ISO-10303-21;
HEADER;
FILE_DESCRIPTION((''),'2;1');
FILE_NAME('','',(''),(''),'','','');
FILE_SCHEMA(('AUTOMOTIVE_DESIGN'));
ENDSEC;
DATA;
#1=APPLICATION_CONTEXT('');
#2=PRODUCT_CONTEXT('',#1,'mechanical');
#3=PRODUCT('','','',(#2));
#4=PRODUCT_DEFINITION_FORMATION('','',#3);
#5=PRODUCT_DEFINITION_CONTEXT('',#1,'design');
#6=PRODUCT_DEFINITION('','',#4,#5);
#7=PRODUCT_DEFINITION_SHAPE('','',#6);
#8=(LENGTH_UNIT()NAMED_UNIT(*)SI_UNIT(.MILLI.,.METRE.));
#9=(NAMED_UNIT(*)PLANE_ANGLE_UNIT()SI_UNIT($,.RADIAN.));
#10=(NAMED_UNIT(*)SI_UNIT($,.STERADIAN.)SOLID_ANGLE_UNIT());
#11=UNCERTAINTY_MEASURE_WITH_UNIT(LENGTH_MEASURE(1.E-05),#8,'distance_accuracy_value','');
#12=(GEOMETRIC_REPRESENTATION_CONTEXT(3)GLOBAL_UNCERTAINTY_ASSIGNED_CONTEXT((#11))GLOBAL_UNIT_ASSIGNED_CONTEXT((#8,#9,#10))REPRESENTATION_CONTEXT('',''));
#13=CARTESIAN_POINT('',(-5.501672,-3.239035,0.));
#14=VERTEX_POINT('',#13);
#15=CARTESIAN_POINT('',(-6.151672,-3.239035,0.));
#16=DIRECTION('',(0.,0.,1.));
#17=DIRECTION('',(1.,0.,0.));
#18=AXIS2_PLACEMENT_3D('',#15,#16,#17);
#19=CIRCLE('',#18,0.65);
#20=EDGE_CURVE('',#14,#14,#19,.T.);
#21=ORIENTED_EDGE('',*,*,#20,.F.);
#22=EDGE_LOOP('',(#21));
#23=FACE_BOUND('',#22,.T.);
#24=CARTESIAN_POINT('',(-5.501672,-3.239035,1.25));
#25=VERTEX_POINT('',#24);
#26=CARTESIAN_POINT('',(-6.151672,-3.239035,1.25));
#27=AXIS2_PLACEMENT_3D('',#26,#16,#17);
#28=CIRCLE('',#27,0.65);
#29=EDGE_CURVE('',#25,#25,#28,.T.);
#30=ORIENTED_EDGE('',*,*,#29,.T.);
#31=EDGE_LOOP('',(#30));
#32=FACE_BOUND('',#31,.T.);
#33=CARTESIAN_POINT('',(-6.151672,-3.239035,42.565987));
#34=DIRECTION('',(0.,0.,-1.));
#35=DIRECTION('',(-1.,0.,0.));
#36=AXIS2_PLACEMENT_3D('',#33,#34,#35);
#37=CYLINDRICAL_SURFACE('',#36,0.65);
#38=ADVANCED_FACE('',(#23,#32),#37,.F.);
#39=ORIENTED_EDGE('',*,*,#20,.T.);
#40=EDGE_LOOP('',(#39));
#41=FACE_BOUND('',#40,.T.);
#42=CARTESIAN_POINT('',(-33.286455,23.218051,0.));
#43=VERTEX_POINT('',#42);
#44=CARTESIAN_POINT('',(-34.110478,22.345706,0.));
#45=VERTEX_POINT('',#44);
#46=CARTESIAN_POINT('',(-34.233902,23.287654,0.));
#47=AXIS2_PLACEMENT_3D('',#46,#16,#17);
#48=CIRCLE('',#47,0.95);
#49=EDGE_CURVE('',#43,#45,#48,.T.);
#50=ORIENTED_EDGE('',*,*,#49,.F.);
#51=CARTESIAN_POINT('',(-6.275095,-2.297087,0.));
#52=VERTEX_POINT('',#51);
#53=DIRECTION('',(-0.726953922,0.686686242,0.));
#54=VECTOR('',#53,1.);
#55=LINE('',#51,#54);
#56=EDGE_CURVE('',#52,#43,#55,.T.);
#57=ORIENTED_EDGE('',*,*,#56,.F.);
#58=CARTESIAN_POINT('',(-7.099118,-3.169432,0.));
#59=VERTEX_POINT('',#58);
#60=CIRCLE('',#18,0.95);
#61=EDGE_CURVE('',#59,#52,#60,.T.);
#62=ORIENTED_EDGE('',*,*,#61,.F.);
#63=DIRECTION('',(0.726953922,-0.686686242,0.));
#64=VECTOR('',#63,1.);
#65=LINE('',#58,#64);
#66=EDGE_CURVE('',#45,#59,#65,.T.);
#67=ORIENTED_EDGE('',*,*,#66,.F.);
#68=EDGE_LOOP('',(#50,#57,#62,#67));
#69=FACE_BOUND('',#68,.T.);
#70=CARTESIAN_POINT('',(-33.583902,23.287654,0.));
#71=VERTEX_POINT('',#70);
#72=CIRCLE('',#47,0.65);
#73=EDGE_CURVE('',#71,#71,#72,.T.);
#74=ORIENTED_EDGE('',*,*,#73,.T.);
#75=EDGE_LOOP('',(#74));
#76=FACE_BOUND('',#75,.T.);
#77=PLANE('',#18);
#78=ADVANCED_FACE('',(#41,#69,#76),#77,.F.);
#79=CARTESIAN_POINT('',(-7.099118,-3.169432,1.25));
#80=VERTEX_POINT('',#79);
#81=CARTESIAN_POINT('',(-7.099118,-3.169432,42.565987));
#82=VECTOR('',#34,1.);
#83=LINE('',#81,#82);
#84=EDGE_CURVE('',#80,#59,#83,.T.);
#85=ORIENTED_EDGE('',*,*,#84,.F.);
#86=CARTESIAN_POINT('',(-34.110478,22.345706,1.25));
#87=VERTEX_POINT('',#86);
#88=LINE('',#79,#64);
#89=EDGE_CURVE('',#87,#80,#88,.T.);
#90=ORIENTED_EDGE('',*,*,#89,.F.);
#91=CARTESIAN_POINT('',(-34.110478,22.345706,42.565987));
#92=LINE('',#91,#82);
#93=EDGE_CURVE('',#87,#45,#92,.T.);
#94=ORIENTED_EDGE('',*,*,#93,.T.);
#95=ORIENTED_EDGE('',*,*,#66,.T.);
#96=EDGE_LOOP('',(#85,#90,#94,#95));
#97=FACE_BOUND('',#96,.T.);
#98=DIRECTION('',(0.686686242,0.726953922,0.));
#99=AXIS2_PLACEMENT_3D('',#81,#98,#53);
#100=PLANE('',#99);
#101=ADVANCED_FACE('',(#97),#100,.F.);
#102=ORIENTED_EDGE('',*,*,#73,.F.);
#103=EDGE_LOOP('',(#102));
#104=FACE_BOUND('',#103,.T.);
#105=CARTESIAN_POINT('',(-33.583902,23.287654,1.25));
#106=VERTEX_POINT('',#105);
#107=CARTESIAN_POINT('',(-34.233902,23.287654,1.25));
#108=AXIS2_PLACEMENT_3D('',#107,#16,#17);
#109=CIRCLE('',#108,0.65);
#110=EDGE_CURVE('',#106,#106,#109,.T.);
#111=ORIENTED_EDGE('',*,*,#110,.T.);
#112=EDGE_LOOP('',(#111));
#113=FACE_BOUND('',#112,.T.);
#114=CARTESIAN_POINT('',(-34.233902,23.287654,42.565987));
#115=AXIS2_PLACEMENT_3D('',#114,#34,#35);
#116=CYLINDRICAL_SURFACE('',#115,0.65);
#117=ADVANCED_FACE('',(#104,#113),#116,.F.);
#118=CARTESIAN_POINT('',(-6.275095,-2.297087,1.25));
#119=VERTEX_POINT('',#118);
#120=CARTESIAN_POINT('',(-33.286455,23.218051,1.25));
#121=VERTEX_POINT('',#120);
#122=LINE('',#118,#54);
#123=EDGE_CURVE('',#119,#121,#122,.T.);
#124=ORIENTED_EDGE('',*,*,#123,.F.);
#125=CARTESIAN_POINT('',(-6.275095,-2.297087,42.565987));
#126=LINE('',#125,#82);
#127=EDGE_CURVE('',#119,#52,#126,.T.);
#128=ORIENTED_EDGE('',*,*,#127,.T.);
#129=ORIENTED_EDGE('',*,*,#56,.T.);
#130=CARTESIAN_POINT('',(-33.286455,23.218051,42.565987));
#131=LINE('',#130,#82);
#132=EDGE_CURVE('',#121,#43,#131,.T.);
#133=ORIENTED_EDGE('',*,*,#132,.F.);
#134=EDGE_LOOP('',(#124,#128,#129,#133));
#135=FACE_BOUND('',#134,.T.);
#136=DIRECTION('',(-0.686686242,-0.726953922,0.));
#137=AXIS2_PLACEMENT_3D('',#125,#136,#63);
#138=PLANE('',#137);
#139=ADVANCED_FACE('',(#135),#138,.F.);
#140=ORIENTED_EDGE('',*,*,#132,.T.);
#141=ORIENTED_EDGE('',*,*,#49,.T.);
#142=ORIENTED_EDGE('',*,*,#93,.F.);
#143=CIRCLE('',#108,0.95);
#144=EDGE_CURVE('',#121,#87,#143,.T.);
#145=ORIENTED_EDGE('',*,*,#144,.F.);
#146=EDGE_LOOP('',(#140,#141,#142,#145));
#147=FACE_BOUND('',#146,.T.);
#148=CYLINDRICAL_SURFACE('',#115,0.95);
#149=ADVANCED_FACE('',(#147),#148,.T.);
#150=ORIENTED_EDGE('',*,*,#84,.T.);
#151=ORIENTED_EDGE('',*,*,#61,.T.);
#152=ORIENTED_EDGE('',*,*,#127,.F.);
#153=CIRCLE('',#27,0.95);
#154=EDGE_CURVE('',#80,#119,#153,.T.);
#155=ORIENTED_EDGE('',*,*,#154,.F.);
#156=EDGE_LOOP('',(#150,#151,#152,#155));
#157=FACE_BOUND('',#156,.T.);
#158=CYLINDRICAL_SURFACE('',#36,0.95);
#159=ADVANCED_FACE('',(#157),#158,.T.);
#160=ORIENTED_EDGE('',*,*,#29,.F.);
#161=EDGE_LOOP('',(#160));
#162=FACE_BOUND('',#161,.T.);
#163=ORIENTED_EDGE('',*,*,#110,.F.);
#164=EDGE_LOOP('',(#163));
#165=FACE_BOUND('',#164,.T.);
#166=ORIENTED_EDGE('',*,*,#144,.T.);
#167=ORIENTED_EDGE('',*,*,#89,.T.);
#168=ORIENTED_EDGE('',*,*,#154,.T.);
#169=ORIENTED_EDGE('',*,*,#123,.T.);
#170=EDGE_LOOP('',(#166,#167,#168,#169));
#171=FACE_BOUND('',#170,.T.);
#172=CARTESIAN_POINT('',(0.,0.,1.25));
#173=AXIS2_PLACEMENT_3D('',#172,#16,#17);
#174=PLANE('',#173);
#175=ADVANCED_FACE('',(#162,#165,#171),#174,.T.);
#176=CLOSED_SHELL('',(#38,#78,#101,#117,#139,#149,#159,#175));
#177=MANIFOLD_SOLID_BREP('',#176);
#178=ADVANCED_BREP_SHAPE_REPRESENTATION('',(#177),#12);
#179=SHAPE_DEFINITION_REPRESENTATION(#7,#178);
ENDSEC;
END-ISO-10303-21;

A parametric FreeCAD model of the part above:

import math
import FreeCAD as App
import Part
import Sketcher
from FreeCAD import Vector

doc = App.newDocument("Part")
params = doc.addObject("Spreadsheet::Sheet", "Params")
for row, (alias, value) in enumerate([
    ("sketch1_diameter", "1.3 mm"),
    ("sketch1_radius", "0.95 mm"),
    ("pad1_length", "1.25 mm"),
], start=1):
    params.set(f"A{row}", alias)
    params.set(f"B{row}", "=" + value)
    params.setAlias(f"B{row}", alias)

body = doc.addObject("PartDesign::Body", "Body")

# Sketch on XY plane
sketch1 = doc.addObject("Sketcher::SketchObject", "Sketch")
body.addObject(sketch1)
sketch1.AttachmentSupport = (doc.XY_Plane, [""])
sketch1.MapMode = "FlatFace"
sketch1.addGeometry([
    Part.LineSegment(Vector(-34.110478, 22.345706, 0), Vector(-7.099118, -3.169432, 0)),  # 0
    Part.ArcOfCircle(Part.Circle(Vector(-6.151672, -3.239035, 0), Vector(0, 0, 1), 0.95), math.radians(175.798346), math.radians(457.464924)),  # 1
    Part.LineSegment(Vector(-6.275095, -2.297087, 0), Vector(-33.286455, 23.218051, 0)),  # 2
    Part.ArcOfCircle(Part.Circle(Vector(-34.233902, 23.287654, 0), Vector(0, 0, 1), 0.95), math.radians(-4.201654), math.radians(277.464924)),  # 3
    Part.Circle(Vector(-6.151672, -3.239035, 0), Vector(0, 0, 1), 0.65),  # 4
    Part.Circle(Vector(-34.233902, 23.287654, 0), Vector(0, 0, 1), 0.65),  # 5
], False)
sketch1.addConstraint([
    Sketcher.Constraint("Coincident", 0, 2, 1, 1),
    Sketcher.Constraint("Coincident", 1, 2, 2, 1),
    Sketcher.Constraint("Coincident", 2, 2, 3, 1),
    Sketcher.Constraint("Coincident", 3, 2, 0, 1),
    Sketcher.Constraint("Coincident", 4, 3, 1, 3),
    Sketcher.Constraint("Coincident", 5, 3, 3, 3),
    Sketcher.Constraint("Equal", 1, 3),
    Sketcher.Constraint("Equal", 4, 5),
    Sketcher.Constraint("Parallel", 0, 2),
    Sketcher.Constraint("Equal", 0, 2),
    Sketcher.Constraint("Diameter", 4, 1.3),
    Sketcher.Constraint("Radius", 1, 0.95),
    Sketcher.Constraint("DistanceX", 3, 3, -1, 1, 34.233902),
    Sketcher.Constraint("Distance", 0, 37.156908),
    Sketcher.Constraint("DistanceX", 1, 3, -1, 1, 6.151672),
    Sketcher.Constraint("DistanceX", 0, 2, -1, 1, 7.099118),
    Sketcher.Constraint("DistanceY", 0, 2, -1, 1, 3.169432),
    Sketcher.Constraint("DistanceY", -1, 1, 2, 2, 23.218051),
])
sketch1.setExpression("Constraints[10]", "Params.sketch1_diameter")
sketch1.setExpression("Constraints[11]", "Params.sketch1_radius")
pad1 = doc.addObject("PartDesign::Pad", "Pad")
body.addObject(pad1)
pad1.Profile = sketch1
pad1.setExpression("Length", "Params.pad1_length")

doc.recompute()
